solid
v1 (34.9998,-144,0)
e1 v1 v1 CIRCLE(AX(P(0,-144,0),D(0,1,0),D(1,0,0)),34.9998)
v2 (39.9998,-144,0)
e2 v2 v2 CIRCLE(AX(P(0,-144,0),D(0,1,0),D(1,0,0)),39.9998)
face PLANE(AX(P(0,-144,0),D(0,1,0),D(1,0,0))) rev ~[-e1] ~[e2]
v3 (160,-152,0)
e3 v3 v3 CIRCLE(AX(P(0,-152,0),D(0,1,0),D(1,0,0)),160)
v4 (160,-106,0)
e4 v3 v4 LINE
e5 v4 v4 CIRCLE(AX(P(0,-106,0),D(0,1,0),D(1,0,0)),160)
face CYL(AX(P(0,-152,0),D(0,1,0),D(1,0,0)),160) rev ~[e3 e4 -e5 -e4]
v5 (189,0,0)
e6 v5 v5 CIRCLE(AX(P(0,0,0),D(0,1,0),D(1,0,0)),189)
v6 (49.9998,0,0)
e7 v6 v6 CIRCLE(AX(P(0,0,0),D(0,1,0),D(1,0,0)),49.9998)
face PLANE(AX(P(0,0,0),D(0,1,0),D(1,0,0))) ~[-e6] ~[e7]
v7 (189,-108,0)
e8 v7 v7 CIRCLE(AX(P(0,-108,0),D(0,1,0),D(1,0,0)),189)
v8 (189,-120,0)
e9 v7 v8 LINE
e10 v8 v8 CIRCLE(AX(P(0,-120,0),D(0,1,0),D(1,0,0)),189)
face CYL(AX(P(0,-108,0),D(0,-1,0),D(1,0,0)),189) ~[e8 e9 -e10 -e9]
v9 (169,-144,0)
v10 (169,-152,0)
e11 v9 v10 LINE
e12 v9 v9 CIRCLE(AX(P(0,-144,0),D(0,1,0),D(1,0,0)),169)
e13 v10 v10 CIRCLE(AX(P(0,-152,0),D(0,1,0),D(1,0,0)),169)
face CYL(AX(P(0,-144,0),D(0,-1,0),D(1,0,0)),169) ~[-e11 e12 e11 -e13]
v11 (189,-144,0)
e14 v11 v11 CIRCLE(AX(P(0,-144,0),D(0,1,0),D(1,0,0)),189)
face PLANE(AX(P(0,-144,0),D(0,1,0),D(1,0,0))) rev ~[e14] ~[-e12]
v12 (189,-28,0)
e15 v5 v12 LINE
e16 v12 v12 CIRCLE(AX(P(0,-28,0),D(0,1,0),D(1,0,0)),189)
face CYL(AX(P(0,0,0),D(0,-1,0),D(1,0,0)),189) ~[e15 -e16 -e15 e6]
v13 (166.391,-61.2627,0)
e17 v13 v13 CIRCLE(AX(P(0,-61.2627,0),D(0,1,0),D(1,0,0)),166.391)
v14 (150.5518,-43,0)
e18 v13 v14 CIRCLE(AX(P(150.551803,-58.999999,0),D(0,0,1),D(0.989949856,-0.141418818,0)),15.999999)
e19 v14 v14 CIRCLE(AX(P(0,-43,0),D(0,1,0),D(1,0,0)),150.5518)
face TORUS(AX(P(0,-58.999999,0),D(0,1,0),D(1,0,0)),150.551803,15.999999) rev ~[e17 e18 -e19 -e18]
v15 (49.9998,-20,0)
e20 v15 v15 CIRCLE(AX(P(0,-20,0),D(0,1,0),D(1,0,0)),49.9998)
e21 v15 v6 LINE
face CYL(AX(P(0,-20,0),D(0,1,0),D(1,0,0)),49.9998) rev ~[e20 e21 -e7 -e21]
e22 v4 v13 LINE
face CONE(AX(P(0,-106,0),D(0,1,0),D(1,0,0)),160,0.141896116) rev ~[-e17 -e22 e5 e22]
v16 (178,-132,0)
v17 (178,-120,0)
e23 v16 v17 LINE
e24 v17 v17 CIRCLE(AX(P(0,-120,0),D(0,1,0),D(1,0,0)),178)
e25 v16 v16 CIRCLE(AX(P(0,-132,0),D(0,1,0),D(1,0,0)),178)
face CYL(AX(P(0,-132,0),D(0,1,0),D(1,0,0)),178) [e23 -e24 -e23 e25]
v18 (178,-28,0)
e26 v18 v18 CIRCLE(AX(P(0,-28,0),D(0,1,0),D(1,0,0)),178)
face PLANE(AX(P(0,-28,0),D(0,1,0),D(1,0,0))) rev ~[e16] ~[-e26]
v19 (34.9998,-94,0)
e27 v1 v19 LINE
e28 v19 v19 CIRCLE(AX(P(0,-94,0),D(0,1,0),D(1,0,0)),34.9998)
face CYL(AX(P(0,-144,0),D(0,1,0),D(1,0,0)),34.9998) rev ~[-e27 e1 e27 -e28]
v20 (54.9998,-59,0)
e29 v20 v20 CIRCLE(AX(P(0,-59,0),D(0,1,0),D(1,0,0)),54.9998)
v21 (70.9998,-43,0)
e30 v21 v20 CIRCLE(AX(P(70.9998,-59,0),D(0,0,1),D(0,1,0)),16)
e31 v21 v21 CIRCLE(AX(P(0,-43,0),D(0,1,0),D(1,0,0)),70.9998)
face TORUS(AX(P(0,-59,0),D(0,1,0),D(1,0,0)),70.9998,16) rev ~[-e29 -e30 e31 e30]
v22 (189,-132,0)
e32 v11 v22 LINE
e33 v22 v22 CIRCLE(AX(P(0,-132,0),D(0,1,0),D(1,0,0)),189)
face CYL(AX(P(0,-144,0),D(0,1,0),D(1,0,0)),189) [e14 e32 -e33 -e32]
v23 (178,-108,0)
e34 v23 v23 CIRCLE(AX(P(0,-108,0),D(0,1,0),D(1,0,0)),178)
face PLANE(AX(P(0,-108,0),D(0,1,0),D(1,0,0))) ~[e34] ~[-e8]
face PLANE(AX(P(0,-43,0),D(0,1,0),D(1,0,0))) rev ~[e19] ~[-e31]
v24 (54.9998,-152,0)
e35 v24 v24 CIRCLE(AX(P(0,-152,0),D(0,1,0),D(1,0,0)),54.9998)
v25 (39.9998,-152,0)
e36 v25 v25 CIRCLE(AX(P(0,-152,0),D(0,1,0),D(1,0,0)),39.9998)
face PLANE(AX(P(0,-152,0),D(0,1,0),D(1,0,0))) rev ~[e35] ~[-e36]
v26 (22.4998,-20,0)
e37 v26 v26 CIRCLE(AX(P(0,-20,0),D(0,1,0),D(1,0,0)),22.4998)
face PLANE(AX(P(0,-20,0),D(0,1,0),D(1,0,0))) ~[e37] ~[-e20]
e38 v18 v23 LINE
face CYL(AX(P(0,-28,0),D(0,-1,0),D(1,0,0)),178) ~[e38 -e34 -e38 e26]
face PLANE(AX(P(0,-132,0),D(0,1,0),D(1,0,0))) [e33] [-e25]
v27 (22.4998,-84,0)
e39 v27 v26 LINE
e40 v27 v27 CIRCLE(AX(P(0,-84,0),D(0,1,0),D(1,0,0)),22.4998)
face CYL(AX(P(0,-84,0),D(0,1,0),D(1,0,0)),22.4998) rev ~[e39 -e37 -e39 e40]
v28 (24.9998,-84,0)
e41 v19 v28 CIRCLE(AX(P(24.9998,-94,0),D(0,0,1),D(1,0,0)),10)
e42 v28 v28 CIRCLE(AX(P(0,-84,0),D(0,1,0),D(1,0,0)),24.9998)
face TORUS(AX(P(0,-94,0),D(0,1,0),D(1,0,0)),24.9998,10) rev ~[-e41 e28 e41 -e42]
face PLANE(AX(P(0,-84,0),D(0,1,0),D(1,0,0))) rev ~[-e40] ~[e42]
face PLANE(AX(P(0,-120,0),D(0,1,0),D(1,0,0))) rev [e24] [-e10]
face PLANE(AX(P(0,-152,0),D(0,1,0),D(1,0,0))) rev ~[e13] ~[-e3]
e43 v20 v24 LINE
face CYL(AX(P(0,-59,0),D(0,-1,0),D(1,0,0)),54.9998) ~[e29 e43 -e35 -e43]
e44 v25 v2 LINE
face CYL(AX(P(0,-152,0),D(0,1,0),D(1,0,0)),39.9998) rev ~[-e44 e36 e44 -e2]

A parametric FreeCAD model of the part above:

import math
import FreeCAD as App
import Part
import Sketcher
from FreeCAD import Vector
Q = App.Units.Quantity

doc = App.newDocument("Part")
params = doc.addObject("Spreadsheet::Sheet", "Params")
for row, (alias, value) in enumerate([
    ("sketch1_radius", "10 mm"),
    ("sketch1_radius2", "16 mm"),
    ("sketch1_width", "5 mm"),
    ("sketch1_width2", "15 mm"),
    ("sketch1_width3", "9 mm"),
    ("revolution_angle", "360 deg"),
], start=1):
    params.set(f"A{row}", alias)
    params.set(f"B{row}", "=" + value)
    params.setAlias(f"B{row}", alias)

body = doc.addObject("PartDesign::Body", "Body")

# Sketch on XY plane
sketch1 = body.newObject("Sketcher::SketchObject", "Sketch")
sketch1.AttachmentSupport = (doc.getObject("XY_Plane"), [""])
sketch1.MapMode = "FlatFace"
sketch1.addGeometry(Part.LineSegment(Vector(189, 0, 0), Vector(50, 0, 0)), False)
sketch1.addGeometry(Part.LineSegment(Vector(50, 0, 0), Vector(50, -20, 0)), False)
sketch1.addGeometry(Part.LineSegment(Vector(50, -20, 0), Vector(22.5, -20, 0)), False)
sketch1.addGeometry(Part.LineSegment(Vector(22.5, -20, 0), Vector(22.5, -84, 0)), False)
sketch1.addGeometry(Part.LineSegment(Vector(22.5, -84, 0), Vector(25, -84, 0)), False)
sketch1.addGeometry(Part.ArcOfCircle(Part.Circle(Vector(25, -94, 0), Vector(0, 0, 1), 10), math.radians(0), math.radians(90)), False)
sketch1.addGeometry(Part.LineSegment(Vector(35, -94, 0), Vector(35, -144, 0)), False)
sketch1.addGeometry(Part.LineSegment(Vector(35, -144, 0), Vector(40, -144, 0)), False)
sketch1.addGeometry(Part.LineSegment(Vector(40, -144, 0), Vector(40, -152, 0)), False)
sketch1.addGeometry(Part.LineSegment(Vector(40, -152, 0), Vector(55, -152, 0)), False)
sketch1.addGeometry(Part.LineSegment(Vector(55, -152, 0), Vector(55, -59, 0)), False)
sketch1.addGeometry(Part.ArcOfCircle(Part.Circle(Vector(71, -59, 0), Vector(0, 0, 1), 16), math.radians(90), math.radians(180)), False)
sketch1.addGeometry(Part.LineSegment(Vector(71, -43, 0), Vector(150.6, -43, 0)), False)
sketch1.addGeometry(Part.ArcOfCircle(Part.Circle(Vector(150.6, -59, 0), Vector(0, 0, 1), 16), math.radians(-8), math.radians(90)), False)
sketch1.addGeometry(Part.LineSegment(Vector(166.4, -61.3, 0), Vector(160, -106, 0)), False)
sketch1.addGeometry(Part.LineSegment(Vector(160, -106, 0), Vector(160, -152, 0)), False)
sketch1.addGeometry(Part.LineSegment(Vector(160, -152, 0), Vector(169, -152, 0)), False)
sketch1.addGeometry(Part.LineSegment(Vector(169, -152, 0), Vector(169, -144, 0)), False)
sketch1.addGeometry(Part.LineSegment(Vector(169, -144, 0), Vector(189, -144, 0)), False)
sketch1.addGeometry(Part.LineSegment(Vector(189, -144, 0), Vector(189, -132, 0)), False)
sketch1.addGeometry(Part.LineSegment(Vector(189, -132, 0), Vector(178, -132, 0)), False)
sketch1.addGeometry(Part.LineSegment(Vector(178, -132, 0), Vector(178, -120, 0)), False)
sketch1.addGeometry(Part.LineSegment(Vector(178, -120, 0), Vector(189, -120, 0)), False)
sketch1.addGeometry(Part.LineSegment(Vector(189, -120, 0), Vector(189, -108, 0)), False)
sketch1.addGeometry(Part.LineSegment(Vector(189, -108, 0), Vector(178, -108, 0)), False)
sketch1.addGeometry(Part.LineSegment(Vector(178, -108, 0), Vector(178, -28, 0)), False)
sketch1.addGeometry(Part.LineSegment(Vector(178, -28, 0), Vector(189, -28, 0)), False)
sketch1.addGeometry(Part.LineSegment(Vector(189, -28, 0), Vector(189, 0, 0)), False)
sketch1.addConstraint(Sketcher.Constraint("Coincident", 0, 2, 1, 1))
sketch1.addConstraint(Sketcher.Constraint("Coincident", 1, 2, 2, 1))
sketch1.addConstraint(Sketcher.Constraint("Coincident", 2, 2, 3, 1))
sketch1.addConstraint(Sketcher.Constraint("Coincident", 3, 2, 4, 1))
sketch1.addConstraint(Sketcher.Constraint("Tangent", 4, 2, 5, 2))
sketch1.addConstraint(Sketcher.Constraint("Tangent", 5, 1, 6, 1))
sketch1.addConstraint(Sketcher.Constraint("Coincident", 6, 2, 7, 1))
sketch1.addConstraint(Sketcher.Constraint("Coincident", 7, 2, 8, 1))
sketch1.addConstraint(Sketcher.Constraint("Coincident", 8, 2, 9, 1))
sketch1.addConstraint(Sketcher.Constraint("Coincident", 9, 2, 10, 1))
sketch1.addConstraint(Sketcher.Constraint("Tangent", 10, 2, 11, 2))
sketch1.addConstraint(Sketcher.Constraint("Tangent", 11, 1, 12, 1))
sketch1.addConstraint(Sketcher.Constraint("Tangent", 12, 2, 13, 2))
sketch1.addConstraint(Sketcher.Constraint("Tangent", 13, 1, 14, 1))
sketch1.addConstraint(Sketcher.Constraint("Coincident", 14, 2, 15, 1))
sketch1.addConstraint(Sketcher.Constraint("Coincident", 15, 2, 16, 1))
sketch1.addConstraint(Sketcher.Constraint("Coincident", 16, 2, 17, 1))
sketch1.addConstraint(Sketcher.Constraint("Coincident", 17, 2, 18, 1))
sketch1.addConstraint(Sketcher.Constraint("Coincident", 18, 2, 19, 1))
sketch1.addConstraint(Sketcher.Constraint("Coincident", 19, 2, 20, 1))
sketch1.addConstraint(Sketcher.Constraint("Coincident", 20, 2, 21, 1))
sketch1.addConstraint(Sketcher.Constraint("Coincident", 21, 2, 22, 1))
sketch1.addConstraint(Sketcher.Constraint("Coincident", 22, 2, 23, 1))
sketch1.addConstraint(Sketcher.Constraint("Coincident", 23, 2, 24, 1))
sketch1.addConstraint(Sketcher.Constraint("Coincident", 24, 2, 25, 1))
sketch1.addConstraint(Sketcher.Constraint("Coincident", 25, 2, 26, 1))
sketch1.addConstraint(Sketcher.Constraint("Coincident", 26, 2, 27, 1))
sketch1.addConstraint(Sketcher.Constraint("Coincident", 27, 2, 0, 1))
sketch1.addConstraint(Sketcher.Constraint("Horizontal", 0))
sketch1.addConstraint(Sketcher.Constraint("Vertical", 1))
sketch1.addConstraint(Sketcher.Constraint("Horizontal", 2))
sketch1.addConstraint(Sketcher.Constraint("Vertical", 3))
sketch1.addConstraint(Sketcher.Constraint("Horizontal", 4))
sketch1.addConstraint(Sketcher.Constraint("Vertical", 6))
sketch1.addConstraint(Sketcher.Constraint("Horizontal", 7))
sketch1.addConstraint(Sketcher.Constraint("Vertical", 8))
sketch1.addConstraint(Sketcher.Constraint("Horizontal", 9))
sketch1.addConstraint(Sketcher.Constraint("Vertical", 10))
sketch1.addConstraint(Sketcher.Constraint("Horizontal", 12))
sketch1.addConstraint(Sketcher.Constraint("Vertical", 15))
sketch1.addConstraint(Sketcher.Constraint("Horizontal", 16))
sketch1.addConstraint(Sketcher.Constraint("Vertical", 17))
sketch1.addConstraint(Sketcher.Constraint("Horizontal", 18))
sketch1.addConstraint(Sketcher.Constraint("Vertical", 19))
sketch1.addConstraint(Sketcher.Constraint("Horizontal", 20))
sketch1.addConstraint(Sketcher.Constraint("Vertical", 21))
sketch1.addConstraint(Sketcher.Constraint("Horizontal", 22))
sketch1.addConstraint(Sketcher.Constraint("Vertical", 23))
sketch1.addConstraint(Sketcher.Constraint("Horizontal", 24))
sketch1.addConstraint(Sketcher.Constraint("Vertical", 25))
sketch1.addConstraint(Sketcher.Constraint("Horizontal", 26))
sketch1.addConstraint(Sketcher.Constraint("Vertical", 27))
sketch1.addConstraint(Sketcher.Constraint("Equal", 11, 13))
sketch1.addConstraint(Sketcher.Constraint("PointOnObject", 0, 2, -1))
sketch1.addConstraint(Sketcher.Constraint("Horizontal", 9, 2, 15, 2))
sketch1.addConstraint(Sketcher.Constraint("Horizontal", 7, 2, 17, 2))
sketch1.addConstraint(Sketcher.Constraint("Vertical", 19, 2, 22, 2))
sketch1.addConstraint(Sketcher.Constraint("Vertical", 21, 2, 24, 2))
sketch1.addConstraint(Sketcher.Constraint("Vertical", 23, 2, 26, 2))
sketch1.addConstraint(Sketcher.Constraint("Equal", 18, 1))
sketch1.addConstraint(Sketcher.Constraint("Equal", 19, 21))
sketch1.addConstraint(Sketcher.Constraint("Equal", 21, 23))
sketch1.addConstraint(Sketcher.Constraint("Radius", 5, Q("10 mm")))
sketch1.addConstraint(Sketcher.Constraint("Radius", 11, Q("16 mm")))
sketch1.addConstraint(Sketcher.Constraint("DistanceX", 7, 1, 7, 2, Q("5 mm")))
sketch1.addConstraint(Sketcher.Constraint("DistanceX", 9, 1, 9, 2, Q("15 mm")))
sketch1.addConstraint(Sketcher.Constraint("DistanceX", 16, 1, 16, 2, Q("9 mm")))
sketch1.addConstraint(Sketcher.Constraint("DistanceX", 18, 1, 18, 2, Q("20 mm")))
sketch1.addConstraint(Sketcher.Constraint("DistanceX", 20, 2, 20, 1, Q("11 mm")))
sketch1.addConstraint(Sketcher.Constraint("DistanceY", 3, 2, 3, 1, Q("64 mm")))
sketch1.addConstraint(Sketcher.Constraint("DistanceY", 8, 2, 8, 1, Q("8 mm")))
sketch1.addConstraint(Sketcher.Constraint("DistanceY", 10, 1, 10, 2, Q("93 mm")))
sketch1.addConstraint(Sketcher.Constraint("DistanceY", 15, 2, 15, 1, Q("46 mm")))
sketch1.addConstraint(Sketcher.Constraint("DistanceY", 19, 1, 19, 2, Q("12 mm")))
sketch1.addConstraint(Sketcher.Constraint("DistanceY", 25, 1, 25, 2, Q("80 mm")))
sketch1.addConstraint(Sketcher.Constraint("DistanceY", 27, 1, 27, 2, Q("28 mm")))
sketch1.addConstraint(Sketcher.Constraint("DistanceX", 2, 2, 2, 1, Q("27.5 mm")))
sketch1.addConstraint(Sketcher.Constraint("DistanceX", -1, 1, 16, 2, Q("169 mm")))
sketch1.addConstraint(Sketcher.Constraint("DistanceX", 1, 2, 10, 2, Q("5 mm")))
sketch1.addConstraint(Sketcher.Constraint("Angle", 14, Q("-98.13 deg")))
sketch1.addConstraint(Sketcher.Constraint("DistanceX", 12, 1, 12, 2, Q("79.552 mm")))
sketch1.setExpression("Constraints[62]", "Params.sketch1_radius")
sketch1.setExpression("Constraints[63]", "Params.sketch1_radius2")
sketch1.setExpression("Constraints[64]", "Params.sketch1_width")
sketch1.setExpression("Constraints[65]", "Params.sketch1_width2")
sketch1.setExpression("Constraints[66]", "Params.sketch1_width3")
revolution = body.newObject("PartDesign::Revolution", "Revolution")
revolution.Profile = sketch1
revolution.ReferenceAxis = (sketch1, ["V_Axis"])
revolution.setExpression("Angle", "Params.revolution_angle")

doc.recompute()
